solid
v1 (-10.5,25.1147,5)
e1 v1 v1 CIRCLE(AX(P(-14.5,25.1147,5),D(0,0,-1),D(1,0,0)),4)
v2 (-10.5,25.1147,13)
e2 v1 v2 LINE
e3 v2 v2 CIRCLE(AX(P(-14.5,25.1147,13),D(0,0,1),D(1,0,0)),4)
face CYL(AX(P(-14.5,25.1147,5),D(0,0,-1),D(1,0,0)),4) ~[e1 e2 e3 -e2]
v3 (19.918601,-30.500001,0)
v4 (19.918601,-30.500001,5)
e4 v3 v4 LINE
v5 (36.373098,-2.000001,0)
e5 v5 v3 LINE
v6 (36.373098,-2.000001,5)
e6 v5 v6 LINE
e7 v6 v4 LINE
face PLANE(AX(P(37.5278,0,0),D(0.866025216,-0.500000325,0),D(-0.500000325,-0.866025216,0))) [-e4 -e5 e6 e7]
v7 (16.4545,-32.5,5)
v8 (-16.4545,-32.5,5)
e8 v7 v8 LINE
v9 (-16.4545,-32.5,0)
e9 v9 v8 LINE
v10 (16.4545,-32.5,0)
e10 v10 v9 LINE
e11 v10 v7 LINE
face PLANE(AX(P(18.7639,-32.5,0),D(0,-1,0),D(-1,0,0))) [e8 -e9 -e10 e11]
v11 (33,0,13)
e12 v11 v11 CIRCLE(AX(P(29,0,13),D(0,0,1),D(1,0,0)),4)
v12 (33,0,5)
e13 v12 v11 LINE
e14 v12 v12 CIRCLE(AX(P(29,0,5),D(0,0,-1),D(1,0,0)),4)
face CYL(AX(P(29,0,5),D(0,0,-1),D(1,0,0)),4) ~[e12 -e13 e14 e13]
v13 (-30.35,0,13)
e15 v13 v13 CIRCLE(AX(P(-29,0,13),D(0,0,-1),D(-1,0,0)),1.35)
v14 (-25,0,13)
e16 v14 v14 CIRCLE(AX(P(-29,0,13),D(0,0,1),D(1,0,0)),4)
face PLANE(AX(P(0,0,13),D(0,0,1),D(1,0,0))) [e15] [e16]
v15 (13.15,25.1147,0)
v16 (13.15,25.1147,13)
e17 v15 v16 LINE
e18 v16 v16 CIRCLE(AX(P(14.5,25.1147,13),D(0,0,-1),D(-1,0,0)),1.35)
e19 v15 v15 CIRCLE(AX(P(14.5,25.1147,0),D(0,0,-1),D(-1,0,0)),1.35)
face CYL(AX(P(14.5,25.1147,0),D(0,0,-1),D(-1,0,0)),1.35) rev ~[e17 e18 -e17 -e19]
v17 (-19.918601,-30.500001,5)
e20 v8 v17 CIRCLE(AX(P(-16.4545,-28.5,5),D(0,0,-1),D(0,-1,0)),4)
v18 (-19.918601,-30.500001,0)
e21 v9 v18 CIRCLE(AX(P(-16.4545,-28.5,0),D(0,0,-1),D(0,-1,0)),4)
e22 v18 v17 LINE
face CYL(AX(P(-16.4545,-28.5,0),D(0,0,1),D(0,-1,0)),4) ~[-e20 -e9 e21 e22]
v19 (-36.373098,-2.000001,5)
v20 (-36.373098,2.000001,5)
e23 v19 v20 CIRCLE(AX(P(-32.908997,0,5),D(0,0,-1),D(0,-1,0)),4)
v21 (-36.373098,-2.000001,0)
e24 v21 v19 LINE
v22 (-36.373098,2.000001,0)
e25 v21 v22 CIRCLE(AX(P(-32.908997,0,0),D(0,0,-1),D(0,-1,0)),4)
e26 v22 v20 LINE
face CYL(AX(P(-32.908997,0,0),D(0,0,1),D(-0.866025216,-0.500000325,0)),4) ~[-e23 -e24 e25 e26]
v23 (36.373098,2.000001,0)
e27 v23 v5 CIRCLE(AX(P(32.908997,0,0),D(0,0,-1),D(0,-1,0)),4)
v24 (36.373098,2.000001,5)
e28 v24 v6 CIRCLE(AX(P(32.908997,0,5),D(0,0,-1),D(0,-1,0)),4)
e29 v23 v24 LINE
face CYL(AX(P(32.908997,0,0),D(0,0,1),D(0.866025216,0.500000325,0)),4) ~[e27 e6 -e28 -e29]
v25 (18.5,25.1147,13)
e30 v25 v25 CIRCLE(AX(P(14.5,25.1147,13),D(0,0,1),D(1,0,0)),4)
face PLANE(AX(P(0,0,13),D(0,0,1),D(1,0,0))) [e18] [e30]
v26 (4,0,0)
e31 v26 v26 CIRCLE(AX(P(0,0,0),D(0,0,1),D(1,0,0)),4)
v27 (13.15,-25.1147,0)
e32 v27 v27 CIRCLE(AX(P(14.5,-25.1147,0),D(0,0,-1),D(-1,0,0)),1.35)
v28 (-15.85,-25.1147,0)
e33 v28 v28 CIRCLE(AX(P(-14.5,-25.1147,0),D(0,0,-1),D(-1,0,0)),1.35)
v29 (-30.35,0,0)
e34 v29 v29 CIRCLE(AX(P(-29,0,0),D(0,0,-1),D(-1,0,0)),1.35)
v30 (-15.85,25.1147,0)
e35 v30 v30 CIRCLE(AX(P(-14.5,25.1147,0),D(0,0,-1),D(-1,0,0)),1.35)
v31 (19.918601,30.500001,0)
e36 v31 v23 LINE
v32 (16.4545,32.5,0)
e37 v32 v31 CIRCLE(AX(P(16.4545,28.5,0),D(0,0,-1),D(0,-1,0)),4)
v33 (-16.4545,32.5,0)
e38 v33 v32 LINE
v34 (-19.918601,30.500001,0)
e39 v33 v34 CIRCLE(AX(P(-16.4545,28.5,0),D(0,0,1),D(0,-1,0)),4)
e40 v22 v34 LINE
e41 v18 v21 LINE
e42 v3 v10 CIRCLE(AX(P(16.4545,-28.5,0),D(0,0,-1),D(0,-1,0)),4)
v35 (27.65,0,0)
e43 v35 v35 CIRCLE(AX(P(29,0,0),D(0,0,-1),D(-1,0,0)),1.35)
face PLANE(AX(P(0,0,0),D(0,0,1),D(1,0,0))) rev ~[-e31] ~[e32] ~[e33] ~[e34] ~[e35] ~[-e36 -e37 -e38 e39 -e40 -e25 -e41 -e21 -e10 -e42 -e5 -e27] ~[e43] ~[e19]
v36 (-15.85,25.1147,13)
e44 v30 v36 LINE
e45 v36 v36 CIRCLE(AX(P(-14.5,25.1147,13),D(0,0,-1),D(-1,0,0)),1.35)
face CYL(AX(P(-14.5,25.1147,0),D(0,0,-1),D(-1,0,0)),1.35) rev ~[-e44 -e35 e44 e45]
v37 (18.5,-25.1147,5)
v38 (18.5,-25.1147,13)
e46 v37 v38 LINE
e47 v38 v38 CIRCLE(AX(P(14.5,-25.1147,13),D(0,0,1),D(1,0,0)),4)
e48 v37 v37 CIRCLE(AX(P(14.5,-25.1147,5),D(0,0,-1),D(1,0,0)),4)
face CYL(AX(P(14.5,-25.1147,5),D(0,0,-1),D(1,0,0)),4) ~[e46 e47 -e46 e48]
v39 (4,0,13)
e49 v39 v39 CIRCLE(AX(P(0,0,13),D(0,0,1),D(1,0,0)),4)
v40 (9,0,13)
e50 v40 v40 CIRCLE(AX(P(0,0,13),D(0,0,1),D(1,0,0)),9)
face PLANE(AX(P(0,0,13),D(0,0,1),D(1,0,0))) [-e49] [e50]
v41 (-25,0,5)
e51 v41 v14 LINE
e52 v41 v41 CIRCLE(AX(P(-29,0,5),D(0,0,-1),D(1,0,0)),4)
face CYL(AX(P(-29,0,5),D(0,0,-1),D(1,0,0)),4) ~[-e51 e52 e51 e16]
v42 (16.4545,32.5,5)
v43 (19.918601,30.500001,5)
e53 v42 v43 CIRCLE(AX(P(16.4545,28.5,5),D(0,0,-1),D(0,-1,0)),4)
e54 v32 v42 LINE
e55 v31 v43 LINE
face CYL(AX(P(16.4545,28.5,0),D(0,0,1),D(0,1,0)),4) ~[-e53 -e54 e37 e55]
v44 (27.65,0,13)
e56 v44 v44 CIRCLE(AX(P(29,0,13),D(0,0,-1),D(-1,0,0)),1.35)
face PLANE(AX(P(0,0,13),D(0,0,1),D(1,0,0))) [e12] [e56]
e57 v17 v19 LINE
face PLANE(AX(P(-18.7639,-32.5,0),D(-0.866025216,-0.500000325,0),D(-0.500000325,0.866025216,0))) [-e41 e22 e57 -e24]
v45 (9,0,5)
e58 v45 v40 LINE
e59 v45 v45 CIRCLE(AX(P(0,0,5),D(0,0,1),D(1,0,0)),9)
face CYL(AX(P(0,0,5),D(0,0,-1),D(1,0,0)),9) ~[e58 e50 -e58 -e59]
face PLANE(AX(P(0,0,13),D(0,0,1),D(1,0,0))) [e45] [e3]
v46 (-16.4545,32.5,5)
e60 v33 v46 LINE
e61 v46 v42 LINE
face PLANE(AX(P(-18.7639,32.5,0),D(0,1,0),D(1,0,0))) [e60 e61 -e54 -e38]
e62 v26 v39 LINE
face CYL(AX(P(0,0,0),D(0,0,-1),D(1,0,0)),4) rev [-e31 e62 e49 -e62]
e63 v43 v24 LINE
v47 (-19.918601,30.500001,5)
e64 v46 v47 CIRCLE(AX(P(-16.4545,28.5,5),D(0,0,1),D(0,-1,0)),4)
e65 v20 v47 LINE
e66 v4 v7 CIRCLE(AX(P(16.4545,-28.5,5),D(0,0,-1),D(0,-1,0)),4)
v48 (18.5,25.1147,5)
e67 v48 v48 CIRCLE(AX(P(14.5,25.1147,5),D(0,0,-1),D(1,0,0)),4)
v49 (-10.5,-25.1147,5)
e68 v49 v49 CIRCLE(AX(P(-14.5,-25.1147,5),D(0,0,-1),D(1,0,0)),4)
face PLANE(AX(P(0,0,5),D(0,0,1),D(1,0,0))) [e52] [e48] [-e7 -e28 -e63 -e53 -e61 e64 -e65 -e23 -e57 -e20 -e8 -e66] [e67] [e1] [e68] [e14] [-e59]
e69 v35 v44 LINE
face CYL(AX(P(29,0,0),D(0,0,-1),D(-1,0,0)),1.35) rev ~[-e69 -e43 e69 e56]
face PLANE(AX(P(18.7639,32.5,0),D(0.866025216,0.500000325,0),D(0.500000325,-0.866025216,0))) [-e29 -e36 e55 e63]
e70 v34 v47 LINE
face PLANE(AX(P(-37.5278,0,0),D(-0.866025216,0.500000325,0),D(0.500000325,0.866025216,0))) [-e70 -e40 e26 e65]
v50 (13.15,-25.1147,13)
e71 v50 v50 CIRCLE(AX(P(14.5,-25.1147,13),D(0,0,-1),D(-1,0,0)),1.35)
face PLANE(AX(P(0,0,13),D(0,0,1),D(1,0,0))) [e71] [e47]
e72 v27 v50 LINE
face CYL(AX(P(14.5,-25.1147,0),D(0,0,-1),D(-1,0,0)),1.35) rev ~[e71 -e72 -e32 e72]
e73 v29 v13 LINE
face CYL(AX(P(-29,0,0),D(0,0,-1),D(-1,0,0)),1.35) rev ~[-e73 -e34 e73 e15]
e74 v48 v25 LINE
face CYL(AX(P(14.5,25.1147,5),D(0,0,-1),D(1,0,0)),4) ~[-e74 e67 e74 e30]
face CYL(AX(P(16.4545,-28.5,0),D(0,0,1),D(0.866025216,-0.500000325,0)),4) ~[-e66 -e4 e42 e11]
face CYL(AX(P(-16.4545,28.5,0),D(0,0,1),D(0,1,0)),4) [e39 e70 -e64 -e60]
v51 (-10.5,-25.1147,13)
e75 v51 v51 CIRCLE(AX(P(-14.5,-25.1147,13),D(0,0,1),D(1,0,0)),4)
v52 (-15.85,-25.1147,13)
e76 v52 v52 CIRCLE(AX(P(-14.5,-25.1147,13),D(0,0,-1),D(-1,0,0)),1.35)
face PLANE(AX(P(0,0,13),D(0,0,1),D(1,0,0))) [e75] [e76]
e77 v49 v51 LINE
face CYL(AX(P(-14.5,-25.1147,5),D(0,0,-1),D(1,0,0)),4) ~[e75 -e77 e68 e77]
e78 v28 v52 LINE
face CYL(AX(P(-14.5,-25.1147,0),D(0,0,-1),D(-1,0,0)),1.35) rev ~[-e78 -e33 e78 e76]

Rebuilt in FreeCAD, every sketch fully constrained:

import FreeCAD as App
import Part
import Sketcher

V = App.Vector
Q = App.Units.Quantity


def edges_at(feature, points):
    """Names of the edges that pass closest to the given points."""
    edges = feature.Shape.Edges
    near = lambda p: min(range(len(edges)), key=lambda i: edges[i].distToShape(Part.Vertex(*p))[0])
    return sorted({f"Edge{near(p) + 1}" for p in points})

doc = App.newDocument("Part")
body = doc.addObject("PartDesign::Body", "Body")
body.AllowCompound = True

# Sketch on XY plane
sketch1 = body.newObject("Sketcher::SketchObject", "Sketch")
sketch1.AttachmentSupport = (doc.getObject("XY_Plane"), [""])
sketch1.MapMode = "FlatFace"
sketch1.addGeometry([
    Part.LineSegment(V(18.8, 32.5, 0), V(-18.8, 32.5, 0)),  # 0
    Part.LineSegment(V(-18.8, 32.5, 0), V(-37.5, 0, 0)),  # 1
    Part.LineSegment(V(-37.5, 0, 0), V(-18.8, -32.5, 0)),  # 2
    Part.LineSegment(V(-18.8, -32.5, 0), V(18.8, -32.5, 0)),  # 3
    Part.LineSegment(V(18.8, -32.5, 0), V(37.5, 0, 0)),  # 4
    Part.LineSegment(V(37.5, 0, 0), V(18.8, 32.5, 0)),  # 5
    Part.Circle(V(-14.5, -25.1, 0), V(0, 0, 1), 4),  # 6
    Part.Circle(V(14.5, -25.1, 0), V(0, 0, 1), 4),  # 7
    Part.Circle(V(-29, 0, 0), V(0, 0, 1), 4),  # 8
    Part.Circle(V(-14.5, 25.1, 0), V(0, 0, 1), 4),  # 9
    Part.Circle(V(0, 0, 0), V(0, 0, 1), 4),  # 10
    Part.Circle(V(29, 0, 0), V(0, 0, 1), 4),  # 11
    Part.Circle(V(14.5, 25.1, 0), V(0, 0, 1), 4),  # 12
], False)
sketch1.addConstraint([
    Sketcher.Constraint("Coincident", 0, 2, 1, 1),
    Sketcher.Constraint("Coincident", 1, 2, 2, 1),
    Sketcher.Constraint("Coincident", 2, 2, 3, 1),
    Sketcher.Constraint("Coincident", 3, 2, 4, 1),
    Sketcher.Constraint("Coincident", 4, 2, 5, 1),
    Sketcher.Constraint("Coincident", 5, 2, 0, 1),
    Sketcher.Constraint("Horizontal", 0),
    Sketcher.Constraint("Horizontal", 3),
    Sketcher.Constraint("Coincident", 10, 3, -1, 1),
    Sketcher.Constraint("Equal", 6, 7),
    Sketcher.Constraint("Equal", 7, 8),
    Sketcher.Constraint("Equal", 8, 9),
    Sketcher.Constraint("Equal", 9, 10),
    Sketcher.Constraint("Equal", 10, 11),
    Sketcher.Constraint("Equal", 11, 12),
    Sketcher.Constraint("Symmetric", 7, 3, 9, 3, -1, 1),
    Sketcher.Constraint("Symmetric", 8, 3, 11, 3, -1, 1),
    Sketcher.Constraint("Symmetric", 6, 3, 12, 3, -1, 1),
    Sketcher.Constraint("Symmetric", 0, 2, 3, 2, -1, 1),
    Sketcher.Constraint("Symmetric", 1, 2, 4, 2, -1, 1),
    Sketcher.Constraint("Symmetric", 6, 3, 7, 3, -2),
    Sketcher.Constraint("PointOnObject", 8, 3, -1),
    Sketcher.Constraint("PointOnObject", 1, 2, -1),
    Sketcher.Constraint("Parallel", 2, 5),
    Sketcher.Constraint("Vertical", 0, 2, 2, 2),
    Sketcher.Constraint("Diameter", 6, Q("8 mm")),
    Sketcher.Constraint("Angle", 1, Q("-120 deg")),
    Sketcher.Constraint("DistanceX", 8, 3, -1, 1, Q("29 mm")),
    Sketcher.Constraint("DistanceX", 6, 3, 7, 3, Q("29 mm")),
    Sketcher.Constraint("DistanceY", -1, 1, 0, 2, Q("32.5 mm")),
    Sketcher.Constraint("DistanceY", 6, 3, 9, 3, Q("50.2294 mm")),
    Sketcher.Constraint("DistanceX", 0, 2, 0, 1, Q("37.5278 mm")),
])
pad1 = body.newObject("PartDesign::Pad", "Pad")
pad1.Profile = sketch1
pad1.Length = 5
doc.recompute()

fillet = body.newObject("PartDesign::Fillet", "Fillet")
fillet.Base = (pad1, edges_at(pad1, [
    (37.528, 0, 2.5),
    (18.764, -32.5, 2.5),
    (-18.764, -32.5, 2.5),
    (-37.528, 0, 2.5),
    (-18.764, 32.5, 2.5),
    (18.764, 32.5, 2.5),
]))
fillet.Radius = 4

# Sketch on XY plane
sketch2 = body.newObject("Sketcher::SketchObject", "Sketch001")
sketch2.AttachmentSupport = (doc.getObject("XY_Plane"), [""])
sketch2.MapMode = "FlatFace"
sketch2.AttachmentOffset = App.Placement(V(0, 0, 5), App.Rotation())
sketch2.addGeometry([
    Part.Circle(V(-29, 0, 0), V(0, 0, 1), 4),  # 0
    Part.Circle(V(-14.5, -25.1, 0), V(0, 0, 1), 4),  # 1
    Part.Circle(V(14.5, -25.1, 0), V(0, 0, 1), 4),  # 2
    Part.Circle(V(29, 0, 0), V(0, 0, 1), 4),  # 3
    Part.Circle(V(14.5, 25.1, 0), V(0, 0, 1), 4),  # 4
    Part.Circle(V(-14.5, 25.1, 0), V(0, 0, 1), 4),  # 5
    Part.Circle(V(0, 0, 0), V(0, 0, 1), 9),  # 6
    Part.Circle(V(0, 0, 0), V(0, 0, 1), 4),  # 7
], False)
sketch2.addConstraint([
    Sketcher.Constraint("Coincident", 6, 3, -1, 1),
    Sketcher.Constraint("Coincident", 7, 3, -1, 1),
    Sketcher.Constraint("Equal", 0, 1),
    Sketcher.Constraint("Equal", 1, 2),
    Sketcher.Constraint("Equal", 2, 3),
    Sketcher.Constraint("Equal", 3, 4),
    Sketcher.Constraint("Equal", 4, 5),
    Sketcher.Constraint("Equal", 5, 7),
    Sketcher.Constraint("Symmetric", 0, 3, 3, 3, -1, 1),
    Sketcher.Constraint("Symmetric", 1, 3, 4, 3, -1, 1),
    Sketcher.Constraint("Symmetric", 2, 3, 5, 3, -1, 1),
    Sketcher.Constraint("Symmetric", 1, 3, 2, 3, -2),
    Sketcher.Constraint("PointOnObject", 0, 3, -1),
    Sketcher.Constraint("Diameter", 0, Q("8 mm")),
    Sketcher.Constraint("Diameter", 6, Q("18 mm")),
    Sketcher.Constraint("DistanceX", 0, 3, -1, 1, Q("29 mm")),
    Sketcher.Constraint("DistanceX", 1, 3, 2, 3, Q("29 mm")),
    Sketcher.Constraint("DistanceY", 1, 3, -1, 1, Q("25.1147 mm")),
])
pad2 = body.newObject("PartDesign::Pad", "Pad001")
pad2.Profile = sketch2
pad2.Length = 8

# Sketch on XY plane
sketch3 = body.newObject("Sketcher::SketchObject", "Sketch002")
sketch3.AttachmentSupport = (doc.getObject("XY_Plane"), [""])
sketch3.MapMode = "FlatFace"
sketch3.addGeometry([
    Part.Circle(V(-29, 0, 0), V(0, 0, 1), 4),  # 0
    Part.Circle(V(-14.5, -25.1, 0), V(0, 0, 1), 4),  # 1
    Part.Circle(V(14.5, -25.1, 0), V(0, 0, 1), 4),  # 2
    Part.Circle(V(29, 0, 0), V(0, 0, 1), 4),  # 3
    Part.Circle(V(14.5, 25.1, 0), V(0, 0, 1), 4),  # 4
    Part.Circle(V(-14.5, 25.1, 0), V(0, 0, 1), 4),  # 5
], False)
sketch3.addConstraint([
    Sketcher.Constraint("Equal", 0, 1),
    Sketcher.Constraint("Equal", 1, 2),
    Sketcher.Constraint("Equal", 2, 3),
    Sketcher.Constraint("Equal", 3, 4),
    Sketcher.Constraint("Equal", 4, 5),
    Sketcher.Constraint("Symmetric", 0, 3, 3, 3, -1, 1),
    Sketcher.Constraint("Symmetric", 1, 3, 4, 3, -1, 1),
    Sketcher.Constraint("Symmetric", 2, 3, 5, 3, -1, 1),
    Sketcher.Constraint("Symmetric", 1, 3, 2, 3, -2),
    Sketcher.Constraint("PointOnObject", 0, 3, -1),
    Sketcher.Constraint("Diameter", 0, Q("8 mm")),
    Sketcher.Constraint("DistanceX", 0, 3, -1, 1, Q("29 mm")),
    Sketcher.Constraint("DistanceX", 1, 3, 2, 3, Q("29 mm")),
    Sketcher.Constraint("DistanceY", 1, 3, -1, 1, Q("25.1147 mm")),
])
pad3 = body.newObject("PartDesign::Pad", "Pad002")
pad3.Profile = sketch3
pad3.Length = 5

# Sketch on XY plane
sketch4 = body.newObject("Sketcher::SketchObject", "Sketch003")
sketch4.AttachmentSupport = (doc.getObject("XY_Plane"), [""])
sketch4.MapMode = "FlatFace"
sketch4.addGeometry([
    Part.Circle(V(14.5, 25.1, 0), V(0, 0, 1), 1.4),  # 0
    Part.Circle(V(-14.5, 25.1, 0), V(0, 0, 1), 1.4),  # 1
    Part.Circle(V(-29, 0, 0), V(0, 0, 1), 1.4),  # 2
    Part.Circle(V(-14.5, -25.1, 0), V(0, 0, 1), 1.4),  # 3
    Part.Circle(V(14.5, -25.1, 0), V(0, 0, 1), 1.4),  # 4
    Part.Circle(V(29, 0, 0), V(0, 0, 1), 1.4),  # 5
], False)
sketch4.addConstraint([
    Sketcher.Constraint("Equal", 0, 1),
    Sketcher.Constraint("Equal", 1, 2),
    Sketcher.Constraint("Equal", 2, 3),
    Sketcher.Constraint("Equal", 3, 4),
    Sketcher.Constraint("Equal", 4, 5),
    Sketcher.Constraint("Symmetric", 0, 3, 3, 3, -1, 1),
    Sketcher.Constraint("Symmetric", 1, 3, 4, 3, -1, 1),
    Sketcher.Constraint("Symmetric", 2, 3, 5, 3, -1, 1),
    Sketcher.Constraint("Symmetric", 0, 3, 1, 3, -2),
    Sketcher.Constraint("PointOnObject", 2, 3, -1),
    Sketcher.Constraint("Diameter", 0, Q("2.7 mm")),
    Sketcher.Constraint("DistanceX", 2, 3, -1, 1, Q("29 mm")),
    Sketcher.Constraint("DistanceX", 1, 3, 0, 3, Q("29 mm")),
    Sketcher.Constraint("DistanceY", -1, 1, 0, 3, Q("25.1147 mm")),
])
pocket1 = body.newObject("PartDesign::Pocket", "Pocket")
pocket1.Profile = sketch4
pocket1.Type = "ThroughAll"
pocket1.Reversed = True

doc.recompute()
